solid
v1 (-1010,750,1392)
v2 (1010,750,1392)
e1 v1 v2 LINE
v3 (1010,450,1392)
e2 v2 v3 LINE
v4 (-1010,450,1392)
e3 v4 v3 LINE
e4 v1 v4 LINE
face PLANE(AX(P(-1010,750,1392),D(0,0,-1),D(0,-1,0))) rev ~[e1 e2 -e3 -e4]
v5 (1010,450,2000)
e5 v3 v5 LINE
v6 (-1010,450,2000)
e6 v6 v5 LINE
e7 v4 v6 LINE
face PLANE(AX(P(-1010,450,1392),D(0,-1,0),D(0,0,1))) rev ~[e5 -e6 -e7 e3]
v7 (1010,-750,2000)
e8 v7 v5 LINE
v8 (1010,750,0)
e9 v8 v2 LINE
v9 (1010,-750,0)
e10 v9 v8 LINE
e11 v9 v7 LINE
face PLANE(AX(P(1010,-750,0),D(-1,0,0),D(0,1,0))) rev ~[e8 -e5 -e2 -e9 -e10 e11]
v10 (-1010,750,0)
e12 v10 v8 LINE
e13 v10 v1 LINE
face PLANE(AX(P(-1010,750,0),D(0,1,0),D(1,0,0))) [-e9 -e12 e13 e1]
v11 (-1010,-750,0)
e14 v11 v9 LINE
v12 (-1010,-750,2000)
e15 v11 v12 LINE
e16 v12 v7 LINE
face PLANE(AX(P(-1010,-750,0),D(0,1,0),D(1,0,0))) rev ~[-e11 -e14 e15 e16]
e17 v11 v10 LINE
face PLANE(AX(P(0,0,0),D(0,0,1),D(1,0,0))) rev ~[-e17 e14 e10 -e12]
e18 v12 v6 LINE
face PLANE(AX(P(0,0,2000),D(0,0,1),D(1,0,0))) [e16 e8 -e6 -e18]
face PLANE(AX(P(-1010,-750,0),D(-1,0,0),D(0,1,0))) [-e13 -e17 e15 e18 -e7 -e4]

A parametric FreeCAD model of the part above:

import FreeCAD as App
import Part
import Sketcher
Q = App.Units.Quantity


def add_polygon(sketch, points):
    """Adds a closed chain of lines whose ends are joined by coincident constraints."""
    first, n = sketch.GeometryCount, len(points)
    for a, b in zip(points, points[1:] + points[:1]):
        sketch.addGeometry(Part.LineSegment(App.Vector(*a, 0), App.Vector(*b, 0)), False)
    for i in range(n):
        sketch.addConstraint(Sketcher.Constraint("Coincident", first + i, 2, first + (i + 1) % n, 1))

doc = App.newDocument("Part")
body = doc.addObject("PartDesign::Body", "Body")

sketch1 = body.newObject("Sketcher::SketchObject", "Sketch")
sketch1.AttachmentSupport = (doc.getObject("XY_Plane"), [""])
sketch1.MapMode = "FlatFace"
add_polygon(sketch1, [(-1010, 750), (-1010, -750), (1010, -750), (1010, 750)])
sketch1.addConstraint(Sketcher.Constraint("Vertical", 0))
sketch1.addConstraint(Sketcher.Constraint("Horizontal", 1))
sketch1.addConstraint(Sketcher.Constraint("Vertical", 2))
sketch1.addConstraint(Sketcher.Constraint("Horizontal", 3))
sketch1.addConstraint(Sketcher.Constraint("Symmetric", 0, 2, 2, 2, -1, 1))
sketch1.addConstraint(Sketcher.Constraint("DistanceX", 1, 1, 1, 2, Q("2020 mm")))
sketch1.addConstraint(Sketcher.Constraint("DistanceY", 0, 2, 0, 1, Q("1500 mm")))
pad1 = body.newObject("PartDesign::Pad", "Pad")
pad1.Profile = sketch1
pad1.Length = 2000

sketch2 = body.newObject("Sketcher::SketchObject", "Sketch001")
sketch2.AttachmentSupport = (doc.getObject("YZ_Plane"), [""])
sketch2.MapMode = "FlatFace"
sketch2.AttachmentOffset = App.Placement(App.Vector(0, 0, -1010), App.Rotation())
add_polygon(sketch2, [(750, 2000), (750, 1392), (450, 1392), (450, 2000)])
sketch2.addConstraint(Sketcher.Constraint("Vertical", 0))
sketch2.addConstraint(Sketcher.Constraint("Horizontal", 1))
sketch2.addConstraint(Sketcher.Constraint("Vertical", 2))
sketch2.addConstraint(Sketcher.Constraint("Horizontal", 3))
sketch2.addConstraint(Sketcher.Constraint("DistanceX", 1, 2, 1, 1, Q("300 mm")))
sketch2.addConstraint(Sketcher.Constraint("DistanceY", 0, 2, 0, 1, Q("608 mm")))
sketch2.addConstraint(Sketcher.Constraint("DistanceX", -1, 1, 0, 2, Q("750 mm")))
sketch2.addConstraint(Sketcher.Constraint("DistanceY", -1, 1, 0, 2, Q("1392 mm")))
pocket1 = body.newObject("PartDesign::Pocket", "Pocket")
pocket1.Profile = sketch2
pocket1.Type = "ThroughAll"
pocket1.Reversed = True

doc.recompute()
